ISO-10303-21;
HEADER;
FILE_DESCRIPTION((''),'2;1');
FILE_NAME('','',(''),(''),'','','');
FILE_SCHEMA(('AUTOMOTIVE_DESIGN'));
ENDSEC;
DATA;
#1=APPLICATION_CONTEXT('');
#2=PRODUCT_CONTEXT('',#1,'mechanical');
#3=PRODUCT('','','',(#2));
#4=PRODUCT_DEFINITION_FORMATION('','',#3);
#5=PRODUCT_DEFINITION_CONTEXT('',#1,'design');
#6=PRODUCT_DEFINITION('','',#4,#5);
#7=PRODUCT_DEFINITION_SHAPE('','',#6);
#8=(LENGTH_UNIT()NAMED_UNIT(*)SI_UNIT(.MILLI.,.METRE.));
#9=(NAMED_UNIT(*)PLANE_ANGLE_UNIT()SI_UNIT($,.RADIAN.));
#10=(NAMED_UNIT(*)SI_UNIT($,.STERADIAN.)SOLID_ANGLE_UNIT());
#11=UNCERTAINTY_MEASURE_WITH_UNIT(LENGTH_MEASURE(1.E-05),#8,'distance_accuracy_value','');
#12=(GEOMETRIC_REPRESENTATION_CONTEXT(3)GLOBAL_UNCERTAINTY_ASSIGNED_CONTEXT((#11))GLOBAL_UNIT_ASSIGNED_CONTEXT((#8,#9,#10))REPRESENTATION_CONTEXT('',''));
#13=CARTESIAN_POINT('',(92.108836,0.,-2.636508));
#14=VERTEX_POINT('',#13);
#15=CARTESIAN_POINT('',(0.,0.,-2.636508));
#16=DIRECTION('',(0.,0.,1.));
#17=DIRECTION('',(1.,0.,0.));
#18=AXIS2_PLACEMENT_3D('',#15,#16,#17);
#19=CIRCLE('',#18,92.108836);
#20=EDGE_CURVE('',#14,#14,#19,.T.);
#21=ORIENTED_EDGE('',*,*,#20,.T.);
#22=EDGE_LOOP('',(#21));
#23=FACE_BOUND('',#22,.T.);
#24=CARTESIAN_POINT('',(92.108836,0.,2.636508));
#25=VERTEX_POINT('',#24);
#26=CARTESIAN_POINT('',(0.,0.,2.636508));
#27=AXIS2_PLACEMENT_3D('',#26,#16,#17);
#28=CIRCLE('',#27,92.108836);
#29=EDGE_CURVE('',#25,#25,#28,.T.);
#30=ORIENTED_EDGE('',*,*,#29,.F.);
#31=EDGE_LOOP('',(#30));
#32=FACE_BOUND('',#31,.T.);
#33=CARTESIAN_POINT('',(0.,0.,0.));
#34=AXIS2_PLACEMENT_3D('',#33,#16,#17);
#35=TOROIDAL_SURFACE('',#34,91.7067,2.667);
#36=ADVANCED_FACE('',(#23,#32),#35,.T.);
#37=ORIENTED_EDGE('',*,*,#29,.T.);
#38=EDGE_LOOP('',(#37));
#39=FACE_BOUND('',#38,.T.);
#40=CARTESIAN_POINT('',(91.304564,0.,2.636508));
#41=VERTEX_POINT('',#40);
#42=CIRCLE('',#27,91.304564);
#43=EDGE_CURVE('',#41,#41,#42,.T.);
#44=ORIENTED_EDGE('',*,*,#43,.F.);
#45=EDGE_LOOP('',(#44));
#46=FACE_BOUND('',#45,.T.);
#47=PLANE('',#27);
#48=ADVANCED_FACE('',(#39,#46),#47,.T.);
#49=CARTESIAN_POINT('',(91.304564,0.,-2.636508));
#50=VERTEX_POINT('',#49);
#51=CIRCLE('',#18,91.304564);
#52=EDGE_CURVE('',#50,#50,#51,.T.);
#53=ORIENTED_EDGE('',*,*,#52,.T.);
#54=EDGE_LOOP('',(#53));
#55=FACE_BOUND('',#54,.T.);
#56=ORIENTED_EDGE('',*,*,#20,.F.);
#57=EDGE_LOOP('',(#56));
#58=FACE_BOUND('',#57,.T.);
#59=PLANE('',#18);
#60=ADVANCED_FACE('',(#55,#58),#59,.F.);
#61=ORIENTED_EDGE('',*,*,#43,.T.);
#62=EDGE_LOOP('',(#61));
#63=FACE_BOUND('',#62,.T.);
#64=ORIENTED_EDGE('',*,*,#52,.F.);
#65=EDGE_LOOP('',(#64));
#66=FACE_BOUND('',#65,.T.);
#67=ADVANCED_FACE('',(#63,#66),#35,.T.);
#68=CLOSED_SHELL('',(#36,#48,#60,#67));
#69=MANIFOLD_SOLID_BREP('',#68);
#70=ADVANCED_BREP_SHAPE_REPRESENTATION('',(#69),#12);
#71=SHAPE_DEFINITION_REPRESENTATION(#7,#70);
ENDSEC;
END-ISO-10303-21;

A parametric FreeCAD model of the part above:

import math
import FreeCAD as App
import Part
import Sketcher
Q = App.Units.Quantity

doc = App.newDocument("Part")
body = doc.addObject("PartDesign::Body", "Body")

sketch1 = body.newObject("Sketcher::SketchObject", "Sketch")
sketch1.AttachmentSupport = (doc.getObject("YZ_Plane"), [""])
sketch1.MapMode = "FlatFace"
sketch1.addGeometry([
    Part.ArcOfCircle(Part.Circle(App.Vector(-91.7, 0, 0), App.Vector(0, 0, 1), 2.7), math.radians(-81), math.radians(81)),
    Part.LineSegment(App.Vector(-91.3, 2.6, 0), App.Vector(-92.1, 2.6, 0)),
    Part.ArcOfCircle(Part.Circle(App.Vector(-91.7, 0, 0), App.Vector(0, 0, 1), 2.7), math.radians(99), math.radians(180)),
    Part.ArcOfCircle(Part.Circle(App.Vector(-91.7, 0, 0), App.Vector(0, 0, 1), 2.7), math.radians(180), math.radians(261)),
    Part.LineSegment(App.Vector(-92.1, -2.6, 0), App.Vector(-91.3, -2.6, 0)),
], False)
sketch1.addConstraint([
    Sketcher.Constraint("Coincident", 0, 2, 1, 1),
    Sketcher.Constraint("Coincident", 1, 2, 2, 1),
    Sketcher.Constraint("Tangent", 2, 2, 3, 1),
    Sketcher.Constraint("Coincident", 3, 2, 4, 1),
    Sketcher.Constraint("Coincident", 4, 2, 0, 1),
    Sketcher.Constraint("Horizontal", 1),
    Sketcher.Constraint("Horizontal", 4),
    Sketcher.Constraint("Coincident", 2, 3, 0, 3),
    Sketcher.Constraint("Equal", 0, 2),
    Sketcher.Constraint("Equal", 2, 3),
    Sketcher.Constraint("Symmetric", 1, 2, 3, 2, -1),
    Sketcher.Constraint("PointOnObject", 2, 2, -1),
    Sketcher.Constraint("Radius", 0, Q("0.105 in")),
    Sketcher.Constraint("DistanceX", 0, 3, -1, 1, Q("3.6105 in")),
    Sketcher.Constraint("DistanceX", 1, 2, 1, 1, 0.804271),
])
revolution = body.newObject("PartDesign::Revolution", "Revolution")
revolution.Profile = sketch1
revolution.ReferenceAxis = (sketch1, ["V_Axis"])
revolution.Angle = 360

doc.recompute()
